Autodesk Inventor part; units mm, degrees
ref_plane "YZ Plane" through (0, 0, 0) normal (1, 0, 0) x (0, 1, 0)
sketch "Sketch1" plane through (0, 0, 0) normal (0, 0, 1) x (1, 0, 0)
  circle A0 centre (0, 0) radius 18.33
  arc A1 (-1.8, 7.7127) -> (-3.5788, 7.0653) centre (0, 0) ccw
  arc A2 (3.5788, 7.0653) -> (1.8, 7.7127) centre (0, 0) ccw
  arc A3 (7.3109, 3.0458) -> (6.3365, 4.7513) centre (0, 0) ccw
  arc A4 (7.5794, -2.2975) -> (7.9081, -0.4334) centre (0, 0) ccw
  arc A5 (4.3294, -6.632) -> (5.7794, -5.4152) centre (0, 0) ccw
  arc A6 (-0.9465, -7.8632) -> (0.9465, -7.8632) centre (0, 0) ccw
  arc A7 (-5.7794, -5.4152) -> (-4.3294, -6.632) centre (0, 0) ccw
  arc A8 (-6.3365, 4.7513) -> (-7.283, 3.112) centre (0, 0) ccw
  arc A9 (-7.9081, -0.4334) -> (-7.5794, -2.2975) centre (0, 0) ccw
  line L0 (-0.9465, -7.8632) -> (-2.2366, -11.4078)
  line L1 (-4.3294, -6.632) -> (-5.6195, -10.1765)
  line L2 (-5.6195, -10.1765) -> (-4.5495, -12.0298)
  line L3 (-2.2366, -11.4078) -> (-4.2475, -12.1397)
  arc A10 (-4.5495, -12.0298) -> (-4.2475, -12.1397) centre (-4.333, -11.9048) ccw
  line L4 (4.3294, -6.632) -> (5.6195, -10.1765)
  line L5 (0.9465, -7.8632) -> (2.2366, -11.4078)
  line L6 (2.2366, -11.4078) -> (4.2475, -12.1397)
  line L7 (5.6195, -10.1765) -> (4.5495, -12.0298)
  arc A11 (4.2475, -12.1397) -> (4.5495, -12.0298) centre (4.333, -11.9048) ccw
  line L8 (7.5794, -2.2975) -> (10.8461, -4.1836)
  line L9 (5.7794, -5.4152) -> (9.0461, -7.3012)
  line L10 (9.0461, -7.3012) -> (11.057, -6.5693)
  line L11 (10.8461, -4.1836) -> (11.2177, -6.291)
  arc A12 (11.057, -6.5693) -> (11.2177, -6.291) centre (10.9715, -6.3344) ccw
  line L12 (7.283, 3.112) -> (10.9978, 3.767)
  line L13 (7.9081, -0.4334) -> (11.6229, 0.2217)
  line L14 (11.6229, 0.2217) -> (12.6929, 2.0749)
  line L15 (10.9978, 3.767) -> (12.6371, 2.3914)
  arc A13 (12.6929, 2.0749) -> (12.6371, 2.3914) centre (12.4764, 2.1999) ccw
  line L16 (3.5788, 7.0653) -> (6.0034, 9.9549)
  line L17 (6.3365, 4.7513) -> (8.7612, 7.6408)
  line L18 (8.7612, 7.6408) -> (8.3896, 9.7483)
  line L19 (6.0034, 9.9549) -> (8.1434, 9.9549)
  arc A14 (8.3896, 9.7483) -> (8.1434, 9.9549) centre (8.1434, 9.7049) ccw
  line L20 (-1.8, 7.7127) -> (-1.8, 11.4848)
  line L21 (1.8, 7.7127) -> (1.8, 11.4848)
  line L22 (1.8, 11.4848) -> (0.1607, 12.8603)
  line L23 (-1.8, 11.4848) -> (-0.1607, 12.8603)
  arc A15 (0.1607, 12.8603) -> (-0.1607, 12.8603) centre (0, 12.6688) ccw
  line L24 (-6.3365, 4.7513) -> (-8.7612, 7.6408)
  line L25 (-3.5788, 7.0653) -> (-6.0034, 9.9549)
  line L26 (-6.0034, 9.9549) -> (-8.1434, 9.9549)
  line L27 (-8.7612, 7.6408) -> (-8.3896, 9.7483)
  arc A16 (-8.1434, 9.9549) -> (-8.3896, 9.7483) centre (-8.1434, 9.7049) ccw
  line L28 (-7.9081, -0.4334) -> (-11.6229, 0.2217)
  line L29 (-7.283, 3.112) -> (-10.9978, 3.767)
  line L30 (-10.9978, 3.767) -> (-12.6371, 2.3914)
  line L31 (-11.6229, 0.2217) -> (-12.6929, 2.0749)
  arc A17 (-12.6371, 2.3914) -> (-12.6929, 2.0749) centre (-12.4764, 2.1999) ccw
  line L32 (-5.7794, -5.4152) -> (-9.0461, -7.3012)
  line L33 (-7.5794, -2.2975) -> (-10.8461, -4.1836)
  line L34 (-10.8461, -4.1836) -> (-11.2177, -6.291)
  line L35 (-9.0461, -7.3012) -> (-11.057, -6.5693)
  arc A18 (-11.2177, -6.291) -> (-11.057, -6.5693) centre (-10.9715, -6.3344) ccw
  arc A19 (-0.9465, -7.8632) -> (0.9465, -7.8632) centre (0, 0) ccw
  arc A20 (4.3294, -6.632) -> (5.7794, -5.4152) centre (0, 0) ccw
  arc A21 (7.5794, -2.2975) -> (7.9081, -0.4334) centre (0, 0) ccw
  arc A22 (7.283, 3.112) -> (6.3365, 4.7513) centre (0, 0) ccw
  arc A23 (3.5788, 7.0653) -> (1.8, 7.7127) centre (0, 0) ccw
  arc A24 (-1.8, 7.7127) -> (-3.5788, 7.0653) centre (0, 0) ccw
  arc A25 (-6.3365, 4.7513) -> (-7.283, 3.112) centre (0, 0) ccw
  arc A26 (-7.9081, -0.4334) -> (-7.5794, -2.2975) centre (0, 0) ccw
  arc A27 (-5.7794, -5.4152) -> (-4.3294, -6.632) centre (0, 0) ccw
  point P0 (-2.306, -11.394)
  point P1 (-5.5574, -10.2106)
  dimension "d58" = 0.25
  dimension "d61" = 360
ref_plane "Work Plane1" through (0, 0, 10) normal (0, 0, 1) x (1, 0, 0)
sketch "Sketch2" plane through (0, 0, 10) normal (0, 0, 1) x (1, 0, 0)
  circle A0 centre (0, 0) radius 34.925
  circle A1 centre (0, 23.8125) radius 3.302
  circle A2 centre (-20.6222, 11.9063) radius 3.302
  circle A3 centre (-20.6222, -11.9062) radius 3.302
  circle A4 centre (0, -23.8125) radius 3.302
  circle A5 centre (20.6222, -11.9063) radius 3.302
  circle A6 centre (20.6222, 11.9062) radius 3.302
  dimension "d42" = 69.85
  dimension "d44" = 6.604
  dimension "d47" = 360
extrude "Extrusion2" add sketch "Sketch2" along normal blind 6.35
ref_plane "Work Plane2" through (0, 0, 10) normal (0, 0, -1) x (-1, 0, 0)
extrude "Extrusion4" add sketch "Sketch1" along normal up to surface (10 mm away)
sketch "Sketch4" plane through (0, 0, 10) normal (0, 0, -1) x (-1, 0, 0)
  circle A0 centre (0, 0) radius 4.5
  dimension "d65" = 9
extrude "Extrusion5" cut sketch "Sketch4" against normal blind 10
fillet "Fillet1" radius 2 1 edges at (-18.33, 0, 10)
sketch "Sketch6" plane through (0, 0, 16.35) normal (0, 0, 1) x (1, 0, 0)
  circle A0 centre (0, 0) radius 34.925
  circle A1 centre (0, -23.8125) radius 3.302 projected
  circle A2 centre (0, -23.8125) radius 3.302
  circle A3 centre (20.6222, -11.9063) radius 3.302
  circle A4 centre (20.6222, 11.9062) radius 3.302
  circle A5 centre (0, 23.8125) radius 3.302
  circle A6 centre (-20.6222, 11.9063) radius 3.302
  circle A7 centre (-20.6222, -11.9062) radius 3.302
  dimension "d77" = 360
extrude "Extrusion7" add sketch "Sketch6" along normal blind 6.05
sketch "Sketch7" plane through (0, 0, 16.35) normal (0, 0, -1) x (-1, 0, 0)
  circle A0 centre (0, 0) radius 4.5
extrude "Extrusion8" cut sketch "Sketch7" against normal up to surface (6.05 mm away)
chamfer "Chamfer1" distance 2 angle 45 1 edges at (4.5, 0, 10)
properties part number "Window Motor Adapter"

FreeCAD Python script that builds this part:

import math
import FreeCAD as App
import Part
import Sketcher
from FreeCAD import Vector
Q = App.Units.Quantity


def edges_at(feature, points):
    """Names of the edges that pass closest to the given points."""
    edges = feature.Shape.Edges
    near = lambda p: min(range(len(edges)), key=lambda i: edges[i].distToShape(Part.Vertex(*p))[0])
    return sorted({f"Edge{near(p) + 1}" for p in points})

doc = App.newDocument("Part")
body = doc.addObject("PartDesign::Body", "Body")

# Sketch on XY plane
sketch1 = body.newObject("Sketcher::SketchObject", "Sketch")
sketch1.AttachmentSupport = (doc.getObject("XY_Plane"), [""])
sketch1.MapMode = "FlatFace"
sketch1.AttachmentOffset = App.Placement(Vector(0, 0, 10), App.Rotation())
sketch1.addGeometry([
    Part.Circle(Vector(0, 0, 0), Vector(0, 0, 1), 34.9),  # 0
    Part.Circle(Vector(-20.6, -11.9, 0), Vector(0, 0, 1), 3.3),  # 1
    Part.Circle(Vector(0, -23.8, 0), Vector(0, 0, 1), 3.3),  # 2
    Part.Circle(Vector(20.6, -11.9, 0), Vector(0, 0, 1), 3.3),  # 3
    Part.Circle(Vector(-20.6, 11.9, 0), Vector(0, 0, 1), 3.3),  # 4
    Part.Circle(Vector(20.6, 11.9, 0), Vector(0, 0, 1), 3.3),  # 5
    Part.Circle(Vector(0, 23.8, 0), Vector(0, 0, 1), 3.3),  # 6
], False)
sketch1.addConstraint([
    Sketcher.Constraint("Coincident", 0, 3, -1, 1),
    Sketcher.Constraint("Equal", 1, 2),
    Sketcher.Constraint("Equal", 2, 3),
    Sketcher.Constraint("Equal", 3, 4),
    Sketcher.Constraint("Equal", 4, 5),
    Sketcher.Constraint("Equal", 5, 6),
    Sketcher.Constraint("Symmetric", 3, 3, 4, 3, -1, 1),
    Sketcher.Constraint("Symmetric", 1, 3, 5, 3, -1, 1),
    Sketcher.Constraint("Symmetric", 2, 3, 6, 3, -1, 1),
    Sketcher.Constraint("Symmetric", 1, 3, 3, 3, -2),
    Sketcher.Constraint("PointOnObject", 2, 3, -2),
    Sketcher.Constraint("Diameter", 0, Q("69.85 mm")),
    Sketcher.Constraint("Diameter", 1, Q("6.604 mm")),
    Sketcher.Constraint("DistanceX", 1, 3, -1, 1, Q("20.6222 mm")),
    Sketcher.Constraint("DistanceY", 1, 3, -1, 1, Q("11.9062 mm")),
    Sketcher.Constraint("DistanceY", 2, 3, -1, 1, Q("23.8125 mm")),
])
pad1 = body.newObject("PartDesign::Pad", "Pad")
pad1.Profile = sketch1
pad1.Length = 6.35

# Sketch on XY plane
sketch2 = body.newObject("Sketcher::SketchObject", "Sketch001")
sketch2.AttachmentSupport = (doc.getObject("XY_Plane"), [""])
sketch2.MapMode = "FlatFace"
sketch2.addGeometry([
    Part.Circle(Vector(0, 0, 0), Vector(0, 0, 1), 18.33),  # 0
    Part.ArcOfCircle(Part.Circle(Vector(0.00067, -0.002252, 0), Vector(0, 0, 1), 7.922303), math.radians(103.137646), math.radians(116.860633)),  # 1
    Part.LineSegment(Vector(-1.8, 7.7127, 0), Vector(-1.8, 11.4848, 0)),  # 2
    Part.LineSegment(Vector(-1.8, 11.4848, 0), Vector(-0.1607, 12.8603, 0)),  # 3
    Part.ArcOfCircle(Part.Circle(Vector(0, 12.6688, 0), Vector(0, 0, 1), 0.249993), math.radians(49.997819), math.radians(130.002181)),  # 4
    Part.LineSegment(Vector(0.1607, 12.8603, 0), Vector(1.8, 11.4848, 0)),  # 5
    Part.LineSegment(Vector(1.8, 11.4848, 0), Vector(1.8, 7.7127, 0)),  # 6
    Part.ArcOfCircle(Part.Circle(Vector(0.000934, 0.002154, 0), Vector(0, 0, 1), 7.917648), math.radians(63.135313), math.radians(76.866408)),  # 7
    Part.LineSegment(Vector(3.5788, 7.0653, 0), Vector(6.0034, 9.9549, 0)),  # 8
    Part.LineSegment(Vector(6.0034, 9.9549, 0), Vector(8.1434, 9.9549, 0)),  # 9
    Part.ArcOfCircle(Part.Circle(Vector(8.1434, 9.7049, 0), Vector(0, 0, 1), 0.249996), math.radians(9.997359), math.radians(90)),  # 10
    Part.LineSegment(Vector(8.3896, 9.7483, 0), Vector(8.7612, 7.6408, 0)),  # 11
    Part.LineSegment(Vector(8.7612, 7.6408, 0), Vector(6.3365, 4.7513, 0)),  # 12
    Part.ArcOfCircle(Part.Circle(Vector(0, 0, 0), Vector(0, 0, 1), 7.919958), math.radians(23.136846), math.radians(36.863676)),  # 13
    Part.LineSegment(Vector(7.283, 3.112, 0), Vector(10.9978, 3.767, 0)),  # 14
    Part.LineSegment(Vector(10.9978, 3.767, 0), Vector(12.6371, 2.3914, 0)),  # 15
    Part.ArcOfCircle(Part.Circle(Vector(12.4764, 2.1999, 0), Vector(0, 0, 1), 0.249994), math.radians(-30.000728), math.radians(49.997819)),  # 16
    Part.LineSegment(Vector(12.6929, 2.0749, 0), Vector(11.6229, 0.2217, 0)),  # 17
    Part.LineSegment(Vector(11.6229, 0.2217, 0), Vector(7.9081, -0.4334, 0)),  # 18
    Part.ArcOfCircle(Part.Circle(Vector(0, 0, 0), Vector(0, 0, 1), 7.920046), math.radians(-16.863329), math.radians(-3.136932)),  # 19
    Part.LineSegment(Vector(7.5794, -2.2975, 0), Vector(10.8461, -4.1836, 0)),  # 20
    Part.LineSegment(Vector(10.8461, -4.1836, 0), Vector(11.2177, -6.291, 0)),  # 21
    Part.ArcOfCircle(Part.Circle(Vector(10.9715, -6.3344, 0), Vector(0, 0, 1), 0.249977), math.radians(-69.999269), math.radians(9.997359)),  # 22
    Part.LineSegment(Vector(11.057, -6.5693, 0), Vector(9.0461, -7.3012, 0)),  # 23
    Part.LineSegment(Vector(9.0461, -7.3012, 0), Vector(5.7794, -5.4152, 0)),  # 24
    Part.ArcOfCircle(Part.Circle(Vector(0.003344, -0.004508, 0), Vector(0, 0, 1), 7.914443), math.radians(-56.865746), math.radians(-43.12936)),  # 25
    Part.LineSegment(Vector(4.3294, -6.632, 0), Vector(5.6195, -10.1765, 0)),  # 26
    Part.LineSegment(Vector(5.6195, -10.1765, 0), Vector(4.5495, -12.0298, 0)),  # 27
    Part.ArcOfCircle(Part.Circle(Vector(4.333, -11.9048, 0), Vector(0, 0, 1), 0.249977), math.radians(-110.000731), math.radians(-30.000728)),  # 28
    Part.LineSegment(Vector(4.2475, -12.1397, 0), Vector(2.2366, -11.4078, 0)),  # 29
    Part.LineSegment(Vector(2.2366, -11.4078, 0), Vector(0.9465, -7.8632, 0)),  # 30
    Part.ArcOfCircle(Part.Circle(Vector(0, 0, 0), Vector(0, 0, 1), 7.919961), math.radians(-96.863719), math.radians(-83.136281)),  # 31
    Part.LineSegment(Vector(-0.9465, -7.8632, 0), Vector(-2.2366, -11.4078, 0)),  # 32
    Part.LineSegment(Vector(-2.2366, -11.4078, 0), Vector(-4.2475, -12.1397, 0)),  # 33
    Part.ArcOfCircle(Part.Circle(Vector(-4.333, -11.9048, 0), Vector(0, 0, 1), 0.249994), math.radians(-149.999272), math.radians(-69.999269)),  # 34
    Part.LineSegment(Vector(-4.5495, -12.0298, 0), Vector(-5.6195, -10.1765, 0)),  # 35
    Part.LineSegment(Vector(-5.6195, -10.1765, 0), Vector(-4.3294, -6.632, 0)),  # 36
    Part.ArcOfCircle(Part.Circle(Vector(0.003865, 0.004082, 0), Vector(0, 0, 1), 7.925577), math.radians(-136.860945), math.radians(-123.143949)),  # 37
    Part.LineSegment(Vector(-5.7794, -5.4152, 0), Vector(-9.0461, -7.3012, 0)),  # 38
    Part.LineSegment(Vector(-9.0461, -7.3012, 0), Vector(-11.057, -6.5693, 0)),  # 39
    Part.ArcOfCircle(Part.Circle(Vector(-10.9715, -6.3344, 0), Vector(0, 0, 1), 0.249996), math.radians(170.002641), math.radians(249.999269)),  # 40
    Part.LineSegment(Vector(-11.2177, -6.291, 0), Vector(-10.8461, -4.1836, 0)),  # 41
    Part.LineSegment(Vector(-10.8461, -4.1836, 0), Vector(-7.5794, -2.2975, 0)),  # 42
    Part.ArcOfCircle(Part.Circle(Vector(0, 0, 0), Vector(0, 0, 1), 7.919958), math.radians(-176.863068), math.radians(-163.136671)),  # 43
    Part.LineSegment(Vector(-7.9081, -0.4334, 0), Vector(-11.6229, 0.2217, 0)),  # 44
    Part.LineSegment(Vector(-11.6229, 0.2217, 0), Vector(-12.6929, 2.0749, 0)),  # 45
    Part.ArcOfCircle(Part.Circle(Vector(-12.4764, 2.1999, 0), Vector(0, 0, 1), 0.249993), math.radians(130.002181), math.radians(210.000728)),  # 46
    Part.LineSegment(Vector(-12.6371, 2.3914, 0), Vector(-10.9978, 3.767, 0)),  # 47
    Part.LineSegment(Vector(-10.9978, 3.767, 0), Vector(-7.283, 3.112, 0)),  # 48
    Part.ArcOfCircle(Part.Circle(Vector(0.002023, -0.001335, 0), Vector(0, 0, 1), 7.922399), math.radians(143.137373), math.radians(156.860021)),  # 49
    Part.LineSegment(Vector(-6.3365, 4.7513, 0), Vector(-8.7612, 7.6408, 0)),  # 50
    Part.LineSegment(Vector(-8.7612, 7.6408, 0), Vector(-8.3896, 9.7483, 0)),  # 51
    Part.ArcOfCircle(Part.Circle(Vector(-8.1434, 9.7049, 0), Vector(0, 0, 1), 0.25), math.radians(90), math.radians(170.002641)),  # 52
    Part.LineSegment(Vector(-8.1434, 9.9549, 0), Vector(-6.0034, 9.9549, 0)),  # 53
    Part.LineSegment(Vector(-6.0034, 9.9549, 0), Vector(-3.5788, 7.0653, 0)),  # 54
], False)
sketch2.addConstraint([
    Sketcher.Constraint("Coincident", 1, 1, 2, 1),
    Sketcher.Constraint("Coincident", 2, 2, 3, 1),
    Sketcher.Constraint("Tangent", 3, 2, 4, 2),
    Sketcher.Constraint("Tangent", 4, 1, 5, 1),
    Sketcher.Constraint("Coincident", 5, 2, 6, 1),
    Sketcher.Constraint("Coincident", 6, 2, 7, 2),
    Sketcher.Constraint("Coincident", 7, 1, 8, 1),
    Sketcher.Constraint("Coincident", 8, 2, 9, 1),
    Sketcher.Constraint("Tangent", 9, 2, 10, 2),
    Sketcher.Constraint("Tangent", 10, 1, 11, 1),
    Sketcher.Constraint("Coincident", 11, 2, 12, 1),
    Sketcher.Constraint("Coincident", 12, 2, 13, 2),
    Sketcher.Constraint("Coincident", 13, 1, 14, 1),
    Sketcher.Constraint("Coincident", 14, 2, 15, 1),
    Sketcher.Constraint("Tangent", 15, 2, 16, 2),
    Sketcher.Constraint("Tangent", 16, 1, 17, 1),
    Sketcher.Constraint("Coincident", 17, 2, 18, 1),
    Sketcher.Constraint("Coincident", 18, 2, 19, 2),
    Sketcher.Constraint("Coincident", 19, 1, 20, 1),
    Sketcher.Constraint("Coincident", 20, 2, 21, 1),
    Sketcher.Constraint("Tangent", 21, 2, 22, 2),
    Sketcher.Constraint("Tangent", 22, 1, 23, 1),
    Sketcher.Constraint("Coincident", 23, 2, 24, 1),
    Sketcher.Constraint("Coincident", 24, 2, 25, 2),
    Sketcher.Constraint("Coincident", 25, 1, 26, 1),
    Sketcher.Constraint("Coincident", 26, 2, 27, 1),
    Sketcher.Constraint("Tangent", 27, 2, 28, 2),
    Sketcher.Constraint("Tangent", 28, 1, 29, 1),
    Sketcher.Constraint("Coincident", 29, 2, 30, 1),
    Sketcher.Constraint("Coincident", 30, 2, 31, 2),
    Sketcher.Constraint("Coincident", 31, 1, 32, 1),
    Sketcher.Constraint("Coincident", 32, 2, 33, 1),
    Sketcher.Constraint("Tangent", 33, 2, 34, 2),
    Sketcher.Constraint("Tangent", 34, 1, 35, 1),
    Sketcher.Constraint("Coincident", 35, 2, 36, 1),
    Sketcher.Constraint("Coincident", 36, 2, 37, 2),
    Sketcher.Constraint("Coincident", 37, 1, 38, 1),
    Sketcher.Constraint("Coincident", 38, 2, 39, 1),
    Sketcher.Constraint("Tangent", 39, 2, 40, 2),
    Sketcher.Constraint("Tangent", 40, 1, 41, 1),
    Sketcher.Constraint("Coincident", 41, 2, 42, 1),
    Sketcher.Constraint("Coincident", 42, 2, 43, 2),
    Sketcher.Constraint("Coincident", 43, 1, 44, 1),
    Sketcher.Constraint("Coincident", 44, 2, 45, 1),
    Sketcher.Constraint("Tangent", 45, 2, 46, 2),
    Sketcher.Constraint("Tangent", 46, 1, 47, 1),
    Sketcher.Constraint("Coincident", 47, 2, 48, 1),
    Sketcher.Constraint("Coincident", 48, 2, 49, 2),
    Sketcher.Constraint("Coincident", 49, 1, 50, 1),
    Sketcher.Constraint("Coincident", 50, 2, 51, 1),
    Sketcher.Constraint("Tangent", 51, 2, 52, 2),
    Sketcher.Constraint("Tangent", 52, 1, 53, 1),
    Sketcher.Constraint("Coincident", 53, 2, 54, 1),
    Sketcher.Constraint("Coincident", 54, 2, 1, 2),
    Sketcher.Constraint("Vertical", 2),
    Sketcher.Constraint("Vertical", 6),
    Sketcher.Constraint("Horizontal", 9),
    Sketcher.Constraint("Horizontal", 53),
    Sketcher.Constraint("Coincident", 0, 3, -1, 1),
    Sketcher.Constraint("Coincident", 13, 3, -1, 1),
    Sketcher.Constraint("Coincident", 19, 3, -1, 1),
    Sketcher.Constraint("Coincident", 31, 3, -1, 1),
    Sketcher.Constraint("Coincident", 43, 3, -1, 1),
    Sketcher.Constraint("Equal", 4, 10),
    Sketcher.Constraint("Equal", 10, 16),
    Sketcher.Constraint("Equal", 13, 19),
    Sketcher.Constraint("Equal", 16, 22),
    Sketcher.Constraint("Equal", 22, 28),
    Sketcher.Constraint("Equal", 19, 31),
    Sketcher.Constraint("Equal", 28, 34),
    Sketcher.Constraint("Equal", 34, 40),
    Sketcher.Constraint("Equal", 31, 43),
    Sketcher.Constraint("Equal", 40, 46),
    Sketcher.Constraint("Equal", 1, 49),
    Sketcher.Constraint("Equal", 46, 52),
    Sketcher.Constraint("Symmetric", 28, 3, 34, 3, -2),
    Sketcher.Constraint("Symmetric", 22, 3, 40, 3, -2),
    Sketcher.Constraint("Symmetric", 16, 3, 46, 3, -2),
    Sketcher.Constraint("Symmetric", 10, 3, 52, 3, -2),
    Sketcher.Constraint("Symmetric", 3, 2, 4, 1, -2),
    Sketcher.Constraint("Symmetric", 1, 1, 6, 2, -2),
    Sketcher.Constraint("Symmetric", 29, 2, 32, 2, -2),
    Sketcher.Constraint("Symmetric", 26, 2, 35, 2, -2),
    Sketcher.Constraint("Symmetric", 25, 1, 36, 2, -2),
    Sketcher.Constraint("Symmetric", 24, 2, 37, 1, -2),
    Sketcher.Constraint("Symmetric", 23, 2, 38, 2, -2),
    Sketcher.Constraint("Symmetric", 20, 2, 41, 2, -2),
    Sketcher.Constraint("Symmetric", 17, 2, 44, 2, -2),
    Sketcher.Constraint("Symmetric", 14, 2, 47, 2, -2),
    Sketcher.Constraint("Symmetric", 13, 1, 48, 2, -2),
    Sketcher.Constraint("Symmetric", 12, 2, 49, 1, -2),
    Sketcher.Constraint("Symmetric", 11, 2, 50, 2, -2),
    Sketcher.Constraint("Symmetric", 7, 1, 54, 2, -2),
    Sketcher.Constraint("Symmetric", 1, 3, 7, 3, -1),
    Sketcher.Constraint("Perpendicular", 5, 8),
    Sketcher.Constraint("Parallel", 8, 12),
    Sketcher.Constraint("Perpendicular", 11, 14),
    Sketcher.Constraint("Perpendicular", 12, 15),
    Sketcher.Constraint("Parallel", 14, 18),
    Sketcher.Constraint("Perpendicular", 17, 20),
    Sketcher.Constraint("Perpendicular", 18, 21),
    Sketcher.Constraint("Parallel", 20, 24),
    Sketcher.Constraint("Perpendicular", 23, 26),
    Sketcher.Constraint("Perpendicular", 24, 27),
    Sketcher.Constraint("Parallel", 26, 30),
    Sketcher.Constraint("Perpendicular", 29, 32),
    Sketcher.Constraint("Perpendicular", 30, 33),
    Sketcher.Constraint("Parallel", 38, 42),
    Sketcher.Constraint("Perpendicular", 41, 44),
    Sketcher.Constraint("Parallel", 50, 54),
    Sketcher.Constraint("Equal", 5, 11),
    Sketcher.Constraint("Equal", 8, 12),
    Sketcher.Constraint("Equal", 12, 14),
    Sketcher.Constraint("Equal", 11, 15),
    Sketcher.Constraint("Equal", 15, 17),
    Sketcher.Constraint("Equal", 14, 18),
    Sketcher.Constraint("Equal", 18, 20),
    Sketcher.Constraint("Equal", 17, 21),
    Sketcher.Constraint("Equal", 21, 23),
    Sketcher.Constraint("Equal", 20, 24),
    Sketcher.Constraint("Equal", 24, 26),
    Sketcher.Constraint("Equal", 23, 27),
    Sketcher.Constraint("Equal", 27, 29),
    Sketcher.Constraint("Equal", 26, 30),
    Sketcher.Constraint("Radius", 4, Q("0.25 mm")),
    Sketcher.Constraint("Diameter", 0, Q("36.66 mm")),
    Sketcher.Constraint("Angle", 3, Q("39.9993 deg")),
    Sketcher.Constraint("Angle", 11, Q("-80.0002 deg")),
    Sketcher.Constraint("Angle", 20, Q("-30.001 deg")),
    Sketcher.Constraint("Angle", 23, Q("-160.0002 deg")),
    Sketcher.Constraint("Radius", 13, Q("7.92 mm")),
    Sketcher.Constraint("DistanceX", 9, 1, 9, 2, Q("2.14 mm")),
    Sketcher.Constraint("DistanceY", -1, 1, 16, 3, Q("2.2 mm")),
    Sketcher.Constraint("DistanceX", 1, 1, -1, 1, Q("1.8 mm")),
    Sketcher.Constraint("Radius", 1, Q("7.9223 mm")),
    Sketcher.Constraint("Radius", 7, Q("7.9176 mm")),
    Sketcher.Constraint("Radius", 25, Q("7.9144 mm")),
    Sketcher.Constraint("Radius", 37, Q("7.9256 mm")),
    Sketcher.Constraint("DistanceY", 2, 1, 2, 2, Q("3.772 mm")),
    Sketcher.Constraint("DistanceX", -1, 1, 28, 3, Q("4.333 mm")),
    Sketcher.Constraint("DistanceY", -1, 1, 37, 3, Q("0.004 mm")),
])
pad2 = body.newObject("PartDesign::Pad", "Pad001")
pad2.Profile = sketch2
pad2.Length = 10

# Sketch on XY plane
sketch3 = body.newObject("Sketcher::SketchObject", "Sketch002")
sketch3.AttachmentSupport = (doc.getObject("XY_Plane"), [""])
sketch3.MapMode = "FlatFace"
sketch3.AttachmentOffset = App.Placement(Vector(0, 0, 10), App.Rotation())
sketch3.addGeometry(Part.Circle(Vector(0, 0, 0), Vector(0, 0, 1), 4.5), False)
sketch3.addConstraint([
    Sketcher.Constraint("Coincident", 0, 3, -1, 1),
    Sketcher.Constraint("Diameter", 0, Q("9 mm")),
])
pocket1 = body.newObject("PartDesign::Pocket", "Pocket")
pocket1.Profile = sketch3
pocket1.Length = 10
pocket1.Reversed = True
doc.recompute()

fillet = body.newObject("PartDesign::Fillet", "Fillet")
fillet.Base = (pocket1, edges_at(pocket1, [(-18.33, 0, 10)]))
fillet.Radius = 2

# Sketch on XY plane
sketch4 = body.newObject("Sketcher::SketchObject", "Sketch003")
sketch4.AttachmentSupport = (doc.getObject("XY_Plane"), [""])
sketch4.MapMode = "FlatFace"
sketch4.AttachmentOffset = App.Placement(Vector(0, 0, 16.35), App.Rotation())
sketch4.addGeometry([
    Part.Circle(Vector(0, 0, 0), Vector(0, 0, 1), 34.9),  # 0
    Part.Circle(Vector(-20.6, -11.9, 0), Vector(0, 0, 1), 3.3),  # 1
    Part.Circle(Vector(0, -23.8, 0), Vector(0, 0, 1), 3.3),  # 2
    Part.Circle(Vector(20.6, -11.9, 0), Vector(0, 0, 1), 3.3),  # 3
    Part.Circle(Vector(-20.6, 11.9, 0), Vector(0, 0, 1), 3.3),  # 4
    Part.Circle(Vector(20.6, 11.9, 0), Vector(0, 0, 1), 3.3),  # 5
    Part.Circle(Vector(0, 23.8, 0), Vector(0, 0, 1), 3.3),  # 6
], False)
sketch4.addConstraint([
    Sketcher.Constraint("Coincident", 0, 3, -1, 1),
    Sketcher.Constraint("Equal", 1, 2),
    Sketcher.Constraint("Equal", 2, 3),
    Sketcher.Constraint("Equal", 3, 4),
    Sketcher.Constraint("Equal", 4, 5),
    Sketcher.Constraint("Equal", 5, 6),
    Sketcher.Constraint("Symmetric", 3, 3, 4, 3, -1, 1),
    Sketcher.Constraint("Symmetric", 1, 3, 5, 3, -1, 1),
    Sketcher.Constraint("Symmetric", 2, 3, 6, 3, -1, 1),
    Sketcher.Constraint("Symmetric", 1, 3, 3, 3, -2),
    Sketcher.Constraint("PointOnObject", 2, 3, -2),
    Sketcher.Constraint("Diameter", 0, Q("69.85 mm")),
    Sketcher.Constraint("Diameter", 1, Q("6.604 mm")),
    Sketcher.Constraint("DistanceX", 1, 3, -1, 1, Q("20.6222 mm")),
    Sketcher.Constraint("DistanceY", 1, 3, -1, 1, Q("11.9062 mm")),
    Sketcher.Constraint("DistanceY", 2, 3, -1, 1, Q("23.8125 mm")),
])
pad3 = body.newObject("PartDesign::Pad", "Pad002")
pad3.Profile = sketch4
pad3.Length = 6.05

# Sketch on XY plane
sketch5 = body.newObject("Sketcher::SketchObject", "Sketch004")
sketch5.AttachmentSupport = (doc.getObject("XY_Plane"), [""])
sketch5.MapMode = "FlatFace"
sketch5.AttachmentOffset = App.Placement(Vector(0, 0, 16.35), App.Rotation())
sketch5.addGeometry(Part.Circle(Vector(0, 0, 0), Vector(0, 0, 1), 4.5), False)
sketch5.addConstraint([
    Sketcher.Constraint("Coincident", 0, 3, -1, 1),
    Sketcher.Constraint("Diameter", 0, Q("9 mm")),
])
pocket2 = body.newObject("PartDesign::Pocket", "Pocket001")
pocket2.Profile = sketch5
pocket2.Length = 6.05
pocket2.Reversed = True
doc.recompute()

chamfer = body.newObject("PartDesign::Chamfer", "Chamfer")
chamfer.Base = (pocket2, edges_at(pocket2, [(4.5, 0, 10)]))
chamfer.Size = 2

doc.recompute()
